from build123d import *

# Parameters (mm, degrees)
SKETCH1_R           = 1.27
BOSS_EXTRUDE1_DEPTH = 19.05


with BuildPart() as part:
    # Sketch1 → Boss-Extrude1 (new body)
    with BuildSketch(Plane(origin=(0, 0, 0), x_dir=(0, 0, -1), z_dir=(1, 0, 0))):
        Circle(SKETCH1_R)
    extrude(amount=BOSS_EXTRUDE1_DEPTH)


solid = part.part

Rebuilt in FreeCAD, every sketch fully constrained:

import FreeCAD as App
import Part
import Sketcher
Q = App.Units.Quantity

doc = App.newDocument("Part")
params = doc.addObject("Spreadsheet::Sheet", "Params")
for row, (alias, value) in enumerate([
    ("sketch1_diameter", "0.1 in"),
    ("pad1_length", "0.75 in"),
], start=1):
    params.set(f"A{row}", alias)
    params.set(f"B{row}", "=" + value)
    params.setAlias(f"B{row}", alias)

body = doc.addObject("PartDesign::Body", "Body")

# Sketch on YZ plane
sketch1 = body.newObject("Sketcher::SketchObject", "Sketch")
sketch1.AttachmentSupport = (doc.getObject("YZ_Plane"), [""])
sketch1.MapMode = "FlatFace"
sketch1.addGeometry(Part.Circle(App.Vector(0, 0, 0), App.Vector(0, 0, 1), 1.3), False)
sketch1.addConstraint([
    Sketcher.Constraint("Coincident", 0, 3, -1, 1),
    Sketcher.Constraint("Diameter", 0, Q("0.1 in")),
])
sketch1.setExpression("Constraints[1]", "Params.sketch1_diameter")
pad1 = body.newObject("PartDesign::Pad", "Pad")
pad1.Profile = sketch1
pad1.setExpression("Length", "Params.pad1_length")

doc.recompute()
